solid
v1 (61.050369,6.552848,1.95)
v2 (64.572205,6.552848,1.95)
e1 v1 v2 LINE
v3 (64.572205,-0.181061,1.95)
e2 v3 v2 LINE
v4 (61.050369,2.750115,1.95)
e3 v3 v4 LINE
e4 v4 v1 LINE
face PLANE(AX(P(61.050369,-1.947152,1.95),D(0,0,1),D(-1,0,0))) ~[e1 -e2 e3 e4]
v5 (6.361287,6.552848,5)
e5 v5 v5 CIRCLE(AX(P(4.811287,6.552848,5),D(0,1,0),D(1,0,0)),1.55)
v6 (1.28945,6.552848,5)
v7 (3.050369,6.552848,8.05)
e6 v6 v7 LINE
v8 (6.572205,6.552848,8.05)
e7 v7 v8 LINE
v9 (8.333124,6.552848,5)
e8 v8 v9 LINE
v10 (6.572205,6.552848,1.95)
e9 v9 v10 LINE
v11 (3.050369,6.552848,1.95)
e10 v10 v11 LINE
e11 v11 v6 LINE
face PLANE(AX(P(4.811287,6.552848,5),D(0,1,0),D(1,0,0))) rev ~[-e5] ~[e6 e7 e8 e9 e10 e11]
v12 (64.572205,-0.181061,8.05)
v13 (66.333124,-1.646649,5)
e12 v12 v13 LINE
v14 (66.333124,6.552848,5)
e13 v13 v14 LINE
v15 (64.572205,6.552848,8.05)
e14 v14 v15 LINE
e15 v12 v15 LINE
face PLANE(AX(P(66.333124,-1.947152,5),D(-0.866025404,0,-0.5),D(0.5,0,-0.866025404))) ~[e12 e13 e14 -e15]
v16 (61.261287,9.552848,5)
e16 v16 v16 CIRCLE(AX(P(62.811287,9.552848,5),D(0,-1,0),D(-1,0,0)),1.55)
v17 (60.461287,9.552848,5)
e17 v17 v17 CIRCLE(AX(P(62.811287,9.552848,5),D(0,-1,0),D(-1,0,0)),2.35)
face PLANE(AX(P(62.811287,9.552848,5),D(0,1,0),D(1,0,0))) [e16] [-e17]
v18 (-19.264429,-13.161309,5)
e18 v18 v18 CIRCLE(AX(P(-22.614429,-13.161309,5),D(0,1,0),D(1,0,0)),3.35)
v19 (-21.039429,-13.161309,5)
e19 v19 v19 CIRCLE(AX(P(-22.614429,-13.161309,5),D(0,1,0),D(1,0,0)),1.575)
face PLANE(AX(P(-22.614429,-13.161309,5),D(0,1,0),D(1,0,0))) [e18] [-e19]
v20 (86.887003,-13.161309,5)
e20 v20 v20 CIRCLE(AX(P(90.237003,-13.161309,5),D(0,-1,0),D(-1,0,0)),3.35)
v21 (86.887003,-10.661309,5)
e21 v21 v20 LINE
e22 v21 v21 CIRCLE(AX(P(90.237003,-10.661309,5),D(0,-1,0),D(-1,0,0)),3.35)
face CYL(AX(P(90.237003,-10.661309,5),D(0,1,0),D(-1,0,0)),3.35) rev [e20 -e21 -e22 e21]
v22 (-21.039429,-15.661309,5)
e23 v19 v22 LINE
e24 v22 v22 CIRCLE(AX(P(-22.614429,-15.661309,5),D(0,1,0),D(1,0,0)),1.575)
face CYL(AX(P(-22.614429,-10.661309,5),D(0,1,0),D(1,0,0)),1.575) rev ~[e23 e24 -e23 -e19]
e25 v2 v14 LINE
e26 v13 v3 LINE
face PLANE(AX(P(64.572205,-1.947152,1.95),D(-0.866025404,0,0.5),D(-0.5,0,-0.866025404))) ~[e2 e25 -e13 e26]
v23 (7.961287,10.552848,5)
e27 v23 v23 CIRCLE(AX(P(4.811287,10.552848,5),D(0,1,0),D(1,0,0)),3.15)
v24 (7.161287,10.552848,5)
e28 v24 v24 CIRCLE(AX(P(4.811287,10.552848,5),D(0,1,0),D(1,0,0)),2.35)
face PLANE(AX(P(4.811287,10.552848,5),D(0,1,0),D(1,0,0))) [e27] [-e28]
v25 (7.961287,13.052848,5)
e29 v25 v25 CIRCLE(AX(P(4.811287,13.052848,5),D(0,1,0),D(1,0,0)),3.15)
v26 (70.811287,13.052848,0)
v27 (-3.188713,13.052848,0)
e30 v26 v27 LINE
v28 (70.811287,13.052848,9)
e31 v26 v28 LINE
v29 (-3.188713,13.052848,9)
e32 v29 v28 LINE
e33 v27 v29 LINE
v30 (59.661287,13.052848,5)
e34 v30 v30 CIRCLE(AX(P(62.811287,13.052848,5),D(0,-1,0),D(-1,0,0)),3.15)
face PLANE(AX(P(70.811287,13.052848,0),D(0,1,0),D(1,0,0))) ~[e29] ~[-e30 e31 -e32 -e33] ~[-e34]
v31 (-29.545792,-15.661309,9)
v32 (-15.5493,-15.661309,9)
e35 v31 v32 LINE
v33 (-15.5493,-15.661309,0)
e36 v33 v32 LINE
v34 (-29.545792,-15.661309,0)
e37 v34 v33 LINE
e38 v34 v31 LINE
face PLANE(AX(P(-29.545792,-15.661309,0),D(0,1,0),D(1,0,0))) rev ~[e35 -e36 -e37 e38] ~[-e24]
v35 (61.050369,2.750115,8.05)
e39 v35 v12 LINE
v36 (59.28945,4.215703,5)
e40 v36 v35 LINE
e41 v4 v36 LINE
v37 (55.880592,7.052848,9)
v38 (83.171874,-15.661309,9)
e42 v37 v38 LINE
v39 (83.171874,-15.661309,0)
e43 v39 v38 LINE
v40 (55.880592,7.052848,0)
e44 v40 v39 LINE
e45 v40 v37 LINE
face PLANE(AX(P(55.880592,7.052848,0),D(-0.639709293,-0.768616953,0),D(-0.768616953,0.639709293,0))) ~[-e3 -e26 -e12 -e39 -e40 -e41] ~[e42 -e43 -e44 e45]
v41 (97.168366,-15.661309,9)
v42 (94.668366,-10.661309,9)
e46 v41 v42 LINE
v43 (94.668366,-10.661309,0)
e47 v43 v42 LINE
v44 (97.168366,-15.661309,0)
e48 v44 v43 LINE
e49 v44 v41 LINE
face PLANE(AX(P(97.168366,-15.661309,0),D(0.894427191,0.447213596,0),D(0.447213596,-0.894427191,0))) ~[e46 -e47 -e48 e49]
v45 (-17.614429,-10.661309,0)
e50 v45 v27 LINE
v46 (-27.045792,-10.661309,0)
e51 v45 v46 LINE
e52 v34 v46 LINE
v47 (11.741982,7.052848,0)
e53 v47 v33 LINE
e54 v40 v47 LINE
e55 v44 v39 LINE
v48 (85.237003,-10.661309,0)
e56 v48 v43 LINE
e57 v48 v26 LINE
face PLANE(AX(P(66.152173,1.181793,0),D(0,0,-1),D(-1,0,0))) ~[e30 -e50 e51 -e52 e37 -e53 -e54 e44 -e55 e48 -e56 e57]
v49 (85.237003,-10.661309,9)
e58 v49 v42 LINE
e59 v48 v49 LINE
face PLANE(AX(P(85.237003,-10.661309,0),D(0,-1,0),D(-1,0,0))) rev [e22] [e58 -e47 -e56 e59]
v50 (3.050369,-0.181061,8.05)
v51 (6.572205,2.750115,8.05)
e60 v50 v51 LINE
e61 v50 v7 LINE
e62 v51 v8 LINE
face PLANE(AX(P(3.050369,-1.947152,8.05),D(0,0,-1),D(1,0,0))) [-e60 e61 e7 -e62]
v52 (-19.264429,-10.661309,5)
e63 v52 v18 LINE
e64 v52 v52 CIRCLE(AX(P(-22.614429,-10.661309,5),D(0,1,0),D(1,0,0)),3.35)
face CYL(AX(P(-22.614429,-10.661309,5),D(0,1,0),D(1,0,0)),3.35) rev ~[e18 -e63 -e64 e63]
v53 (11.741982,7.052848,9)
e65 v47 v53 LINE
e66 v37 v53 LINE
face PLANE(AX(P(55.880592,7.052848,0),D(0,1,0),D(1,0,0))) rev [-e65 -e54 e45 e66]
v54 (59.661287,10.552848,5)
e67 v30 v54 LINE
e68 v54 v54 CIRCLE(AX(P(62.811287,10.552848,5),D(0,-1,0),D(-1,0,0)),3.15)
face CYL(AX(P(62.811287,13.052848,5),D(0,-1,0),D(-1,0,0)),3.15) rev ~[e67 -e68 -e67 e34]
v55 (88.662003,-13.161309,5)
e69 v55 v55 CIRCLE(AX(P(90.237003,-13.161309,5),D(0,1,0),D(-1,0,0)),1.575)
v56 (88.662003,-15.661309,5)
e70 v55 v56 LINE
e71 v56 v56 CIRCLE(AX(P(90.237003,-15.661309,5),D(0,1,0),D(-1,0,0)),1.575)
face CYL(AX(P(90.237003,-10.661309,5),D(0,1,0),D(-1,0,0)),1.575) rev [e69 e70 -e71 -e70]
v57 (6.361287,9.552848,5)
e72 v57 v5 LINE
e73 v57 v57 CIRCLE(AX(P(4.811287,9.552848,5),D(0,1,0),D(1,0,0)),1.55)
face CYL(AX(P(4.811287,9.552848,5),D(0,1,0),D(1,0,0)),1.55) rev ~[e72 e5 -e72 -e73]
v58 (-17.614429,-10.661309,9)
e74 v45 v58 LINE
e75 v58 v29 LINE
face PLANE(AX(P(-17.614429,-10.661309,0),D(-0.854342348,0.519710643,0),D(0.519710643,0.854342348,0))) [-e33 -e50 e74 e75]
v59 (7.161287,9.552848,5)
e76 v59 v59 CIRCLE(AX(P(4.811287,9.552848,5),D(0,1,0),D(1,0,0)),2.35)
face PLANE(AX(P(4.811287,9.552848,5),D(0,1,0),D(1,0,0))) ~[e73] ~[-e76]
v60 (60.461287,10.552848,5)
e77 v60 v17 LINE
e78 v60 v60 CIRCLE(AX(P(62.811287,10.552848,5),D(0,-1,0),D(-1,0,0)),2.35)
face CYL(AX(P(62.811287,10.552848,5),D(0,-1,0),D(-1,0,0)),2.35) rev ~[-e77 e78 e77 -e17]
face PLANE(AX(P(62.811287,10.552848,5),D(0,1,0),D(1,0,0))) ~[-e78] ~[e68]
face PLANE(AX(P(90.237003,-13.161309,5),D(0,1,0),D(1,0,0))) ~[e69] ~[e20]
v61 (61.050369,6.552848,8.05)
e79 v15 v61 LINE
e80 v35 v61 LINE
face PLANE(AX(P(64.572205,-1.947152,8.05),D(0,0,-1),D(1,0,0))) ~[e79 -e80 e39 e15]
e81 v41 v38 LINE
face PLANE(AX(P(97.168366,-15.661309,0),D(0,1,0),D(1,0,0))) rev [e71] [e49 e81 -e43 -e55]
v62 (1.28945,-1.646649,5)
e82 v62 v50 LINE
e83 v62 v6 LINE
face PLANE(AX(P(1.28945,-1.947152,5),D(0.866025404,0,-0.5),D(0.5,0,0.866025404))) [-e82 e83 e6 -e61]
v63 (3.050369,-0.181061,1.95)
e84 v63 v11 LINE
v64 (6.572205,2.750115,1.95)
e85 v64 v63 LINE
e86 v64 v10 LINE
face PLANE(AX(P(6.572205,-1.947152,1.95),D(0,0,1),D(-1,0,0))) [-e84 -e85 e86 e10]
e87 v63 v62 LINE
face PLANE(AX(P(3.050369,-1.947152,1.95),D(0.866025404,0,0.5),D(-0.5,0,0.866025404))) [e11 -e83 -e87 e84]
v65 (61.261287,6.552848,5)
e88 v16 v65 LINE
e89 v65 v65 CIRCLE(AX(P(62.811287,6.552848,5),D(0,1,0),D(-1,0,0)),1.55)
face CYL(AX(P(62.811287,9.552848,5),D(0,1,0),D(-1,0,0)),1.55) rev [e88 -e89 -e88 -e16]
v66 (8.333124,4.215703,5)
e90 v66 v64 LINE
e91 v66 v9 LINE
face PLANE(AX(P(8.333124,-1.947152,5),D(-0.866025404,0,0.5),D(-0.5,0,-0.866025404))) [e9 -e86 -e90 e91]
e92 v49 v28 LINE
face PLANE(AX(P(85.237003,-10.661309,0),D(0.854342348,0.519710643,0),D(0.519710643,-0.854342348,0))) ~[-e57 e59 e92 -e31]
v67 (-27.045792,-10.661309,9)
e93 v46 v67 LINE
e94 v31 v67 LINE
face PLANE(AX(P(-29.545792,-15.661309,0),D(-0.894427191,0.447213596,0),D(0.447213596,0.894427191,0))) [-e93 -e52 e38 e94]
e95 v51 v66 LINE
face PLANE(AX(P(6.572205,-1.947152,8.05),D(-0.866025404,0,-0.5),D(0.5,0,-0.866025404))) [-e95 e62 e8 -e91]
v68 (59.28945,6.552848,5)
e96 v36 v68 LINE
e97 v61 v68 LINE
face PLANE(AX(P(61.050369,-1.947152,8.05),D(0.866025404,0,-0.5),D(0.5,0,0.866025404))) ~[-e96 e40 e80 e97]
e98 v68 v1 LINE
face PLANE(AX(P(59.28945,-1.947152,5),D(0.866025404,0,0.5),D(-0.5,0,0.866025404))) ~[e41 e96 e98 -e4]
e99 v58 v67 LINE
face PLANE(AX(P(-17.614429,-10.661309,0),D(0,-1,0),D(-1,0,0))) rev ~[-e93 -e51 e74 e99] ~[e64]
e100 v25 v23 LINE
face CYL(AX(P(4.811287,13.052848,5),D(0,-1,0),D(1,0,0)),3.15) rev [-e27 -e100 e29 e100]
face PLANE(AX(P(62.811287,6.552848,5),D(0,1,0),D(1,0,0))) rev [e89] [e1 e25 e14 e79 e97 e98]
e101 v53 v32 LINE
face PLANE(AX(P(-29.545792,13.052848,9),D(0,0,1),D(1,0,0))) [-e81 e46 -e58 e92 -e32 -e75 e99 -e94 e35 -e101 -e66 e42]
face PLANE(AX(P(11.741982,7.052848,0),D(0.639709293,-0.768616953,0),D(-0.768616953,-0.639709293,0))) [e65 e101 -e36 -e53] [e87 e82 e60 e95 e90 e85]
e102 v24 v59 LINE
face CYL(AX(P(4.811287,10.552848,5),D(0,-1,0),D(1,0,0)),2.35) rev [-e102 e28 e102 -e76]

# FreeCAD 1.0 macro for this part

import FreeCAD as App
import Part
import Sketcher
Q = App.Units.Quantity


def add_polygon(sketch, points):
    """Adds a closed chain of lines whose ends are joined by coincident constraints."""
    first, n = sketch.GeometryCount, len(points)
    for a, b in zip(points, points[1:] + points[:1]):
        sketch.addGeometry(Part.LineSegment(App.Vector(*a, 0), App.Vector(*b, 0)), False)
    for i in range(n):
        sketch.addConstraint(Sketcher.Constraint("Coincident", first + i, 2, first + (i + 1) % n, 1))

doc = App.newDocument("Part")
body = doc.addObject("PartDesign::Body", "Body")

# Sketch on XY plane
sketch1 = body.newObject("Sketcher::SketchObject", "Sketch")
sketch1.AttachmentSupport = (doc.getObject("XY_Plane"), [""])
sketch1.MapMode = "FlatFace"
add_polygon(sketch1, [(34, 13), (-3, 13), (-18, -11), (-27, -11), (-30, -16), (-16, -16), (12, 7), (34, 7)])  # lines 0-7
sketch1.addConstraint(Sketcher.Constraint("Horizontal", 0))
sketch1.addConstraint(Sketcher.Constraint("Horizontal", 2))
sketch1.addConstraint(Sketcher.Constraint("Horizontal", 4))
sketch1.addConstraint(Sketcher.Constraint("Horizontal", 6))
sketch1.addConstraint(Sketcher.Constraint("Vertical", 7))
sketch1.addConstraint(Sketcher.Constraint("DistanceX", 0, 2, 0, 1, Q("37 mm")))
sketch1.addConstraint(Sketcher.Constraint("DistanceY", 7, 1, 7, 2, Q("6 mm")))
sketch1.addConstraint(Sketcher.Constraint("DistanceY", 3, 2, 2, 2, Q("5 mm")))
sketch1.addConstraint(Sketcher.Constraint("DistanceX", 3, 2, 2, 2, Q("2.5 mm")))
sketch1.addConstraint(Sketcher.Constraint("Distance", 5, Q("35.506999 mm")))
sketch1.addConstraint(Sketcher.Constraint("DistanceX", 4, 1, 4, 2, Q("13.996492 mm")))
sketch1.addConstraint(Sketcher.Constraint("DistanceX", 4, 2, -1, 1, Q("15.5493 mm")))
sketch1.addConstraint(Sketcher.Constraint("DistanceX", 2, 2, 2, 1, Q("9.431363 mm")))
sketch1.addConstraint(Sketcher.Constraint("DistanceX", 6, 1, 6, 2, Q("22.069305 mm")))
sketch1.addConstraint(Sketcher.Constraint("DistanceY", -1, 1, 0, 2, Q("13.052848 mm")))
sketch1.addConstraint(Sketcher.Constraint("DistanceY", 1, 2, -1, 1, Q("10.661309 mm")))
pad1 = body.newObject("PartDesign::Pad", "Pad")
pad1.Profile = sketch1
pad1.Length = 10
doc.recompute()

datumplane = body.newObject("PartDesign::Plane", "DatumPlane")
datumplane.AttachmentSupport = (doc.getObject("YZ_Plane"), [""])
datumplane.MapMode = "FlatFace"
datumplane.AttachmentOffset = App.Placement(App.Vector(0, 0, 33.811287), App.Rotation())
mirrored = body.newObject("PartDesign::Mirrored", "Mirrored")
mirrored.Originals = [pad1]
mirrored.MirrorPlane = (datumplane, [""])
body.Tip = mirrored

# Sketch on XY plane
sketch2 = body.newObject("Sketcher::SketchObject", "Sketch001")
sketch2.AttachmentSupport = (doc.getObject("XY_Plane"), [""])
sketch2.MapMode = "FlatFace"
sketch2.AttachmentOffset = App.Placement(App.Vector(0, 0, 5), App.Rotation())
add_polygon(sketch2, [(8, 10.6), (8, 13.1), (4.8, 13.1), (4.8, 9.6), (7.2, 9.6), (7.2, 10.6)])  # lines 0-5
sketch2.addGeometry(Part.LineSegment(App.Vector(4.8, 9.6, 0), App.Vector(4.8, 13.1, 0)), True)  # axis
sketch2.addConstraint(Sketcher.Constraint("Vertical", 0))
sketch2.addConstraint(Sketcher.Constraint("Horizontal", 1))
sketch2.addConstraint(Sketcher.Constraint("Vertical", 2))
sketch2.addConstraint(Sketcher.Constraint("Horizontal", 3))
sketch2.addConstraint(Sketcher.Constraint("Vertical", 4))
sketch2.addConstraint(Sketcher.Constraint("Horizontal", 5))
sketch2.addConstraint(Sketcher.Constraint("Vertical", 6))
sketch2.addConstraint(Sketcher.Constraint("Coincident", 6, 1, 2, 2))
sketch2.addConstraint(Sketcher.Constraint("Horizontal", 0, 2, 6, 2))
sketch2.addConstraint(Sketcher.Constraint("DistanceY", 4, 1, 4, 2, Q("1 mm")))
sketch2.addConstraint(Sketcher.Constraint("DistanceX", 5, 1, 5, 2, Q("0.8 mm")))
sketch2.addConstraint(Sketcher.Constraint("DistanceY", 0, 1, 0, 2, Q("2.5 mm")))
sketch2.addConstraint(Sketcher.Constraint("DistanceX", 1, 2, 1, 1, Q("3.15 mm")))
sketch2.addConstraint(Sketcher.Constraint("DistanceY", -1, 1, 0, 2, Q("13.052848 mm")))
sketch2.addConstraint(Sketcher.Constraint("DistanceX", -1, 1, 0, 2, Q("7.961287 mm")))
groove = body.newObject("PartDesign::Groove", "Groove")
groove.Profile = sketch2
groove.ReferenceAxis = (sketch2, ["Axis0"])
groove.Angle = 360

# Sketch on XZ plane
sketch3 = body.newObject("Sketcher::SketchObject", "Sketch002")
sketch3.AttachmentSupport = (doc.getObject("XZ_Plane"), [""])
sketch3.MapMode = "FlatFace"
sketch3.AttachmentOffset = App.Placement(App.Vector(0, 0, -9.552848), App.Rotation())
sketch3.addGeometry(Part.Circle(App.Vector(4.8, 5, 0), App.Vector(0, 0, 1), 1.6), False)
sketch3.addConstraint(Sketcher.Constraint("Diameter", 0, Q("3.1 mm")))
sketch3.addConstraint(Sketcher.Constraint("DistanceY", -1, 1, 0, 3, Q("5 mm")))
sketch3.addConstraint(Sketcher.Constraint("DistanceX", -1, 1, 0, 3, Q("4.811287 mm")))
pocket1 = body.newObject("PartDesign::Pocket", "Pocket")
pocket1.Profile = sketch3
pocket1.Type = "ThroughAll"
pocket1.Reversed = True

# Sketch on XZ plane
sketch4 = body.newObject("Sketcher::SketchObject", "Sketch003")
sketch4.AttachmentSupport = (doc.getObject("XZ_Plane"), [""])
sketch4.MapMode = "FlatFace"
sketch4.AttachmentOffset = App.Placement(App.Vector(0, 0, 1.947152), App.Rotation())
add_polygon(sketch4, [(8.3, 5), (6.6, 1.9), (3.1, 1.9), (1.3, 5), (3.1, 8.1), (6.6, 8.1)])  # lines 0-5
sketch4.addConstraint(Sketcher.Constraint("Horizontal", 1))
sketch4.addConstraint(Sketcher.Constraint("Horizontal", 4))
sketch4.addConstraint(Sketcher.Constraint("Parallel", 0, 3))
sketch4.addConstraint(Sketcher.Constraint("Parallel", 2, 5))
sketch4.addConstraint(Sketcher.Constraint("Horizontal", 2, 2, 5, 2))
sketch4.addConstraint(Sketcher.Constraint("Vertical", 1, 2, 3, 2))
sketch4.addConstraint(Sketcher.Constraint("Vertical", 0, 2, 4, 2))
sketch4.addConstraint(Sketcher.Constraint("Angle", 0, Q("-120 deg")))
sketch4.addConstraint(Sketcher.Constraint("DistanceY", -1, 1, 2, 2, Q("5 mm")))
sketch4.addConstraint(Sketcher.Constraint("DistanceY", 1, 2, 3, 2, Q("6.1 mm")))
sketch4.addConstraint(Sketcher.Constraint("DistanceX", 1, 2, 1, 1, Q("3.521837 mm")))
sketch4.addConstraint(Sketcher.Constraint("DistanceX", -1, 1, 1, 2, Q("3.050369 mm")))
pocket2 = body.newObject("PartDesign::Pocket", "Pocket001")
pocket2.Profile = sketch4
pocket2.Length = 8.5

# Sketch on XZ plane
sketch5 = body.newObject("Sketcher::SketchObject", "Sketch004")
sketch5.AttachmentSupport = (doc.getObject("XZ_Plane"), [""])
sketch5.MapMode = "FlatFace"
sketch5.AttachmentOffset = App.Placement(App.Vector(0, 0, 10.661309), App.Rotation())
sketch5.addGeometry(Part.Circle(App.Vector(-22.6, 5, 0), App.Vector(0, 0, 1), 1.6), False)
sketch5.addConstraint(Sketcher.Constraint("Diameter", 0, Q("3.15 mm")))
sketch5.addConstraint(Sketcher.Constraint("DistanceY", -1, 1, 0, 3, Q("5 mm")))
sketch5.addConstraint(Sketcher.Constraint("DistanceX", 0, 3, -1, 1, Q("22.614429 mm")))
pocket3 = body.newObject("PartDesign::Pocket", "Pocket002")
pocket3.Profile = sketch5
pocket3.Length = 12
pocket3.Reversed = True

# Sketch on XZ plane
sketch6 = body.newObject("Sketcher::SketchObject", "Sketch005")
sketch6.AttachmentSupport = (doc.getObject("XZ_Plane"), [""])
sketch6.MapMode = "FlatFace"
sketch6.AttachmentOffset = App.Placement(App.Vector(0, 0, 10.661309), App.Rotation())
sketch6.addGeometry(Part.Circle(App.Vector(-22.6, 5, 0), App.Vector(0, 0, 1), 3.4), False)
sketch6.addConstraint(Sketcher.Constraint("Diameter", 0, Q("6.7 mm")))
sketch6.addConstraint(Sketcher.Constraint("DistanceY", -1, 1, 0, 3, Q("5 mm")))
sketch6.addConstraint(Sketcher.Constraint("DistanceX", 0, 3, -1, 1, Q("22.614429 mm")))
pocket4 = body.newObject("PartDesign::Pocket", "Pocket003")
pocket4.Profile = sketch6
pocket4.Length = 2.5
pocket4.Reversed = True
doc.recompute()

datumplane2 = body.newObject("PartDesign::Plane", "DatumPlane001")
datumplane2.AttachmentSupport = (doc.getObject("YZ_Plane"), [""])
datumplane2.MapMode = "FlatFace"
datumplane2.AttachmentOffset = App.Placement(App.Vector(0, 0, 33.811287), App.Rotation())
mirrored2 = body.newObject("PartDesign::Mirrored", "Mirrored001")
mirrored2.Originals = [groove, pocket1, pocket2, pocket3, pocket4]
mirrored2.MirrorPlane = (datumplane2, [""])
body.Tip = mirrored2

# Sketch on XZ plane
sketch7 = body.newObject("Sketcher::SketchObject", "Sketch006")
sketch7.AttachmentSupport = (doc.getObject("XZ_Plane"), [""])
sketch7.MapMode = "FlatFace"
sketch7.AttachmentOffset = App.Placement(App.Vector(0, 0, -13.052848), App.Rotation())
add_polygon(sketch7, [(-29.5, 9), (-29.5, 10), (97.2, 10), (97.2, 9)])  # lines 0-3
sketch7.addConstraint(Sketcher.Constraint("Vertical", 0))
sketch7.addConstraint(Sketcher.Constraint("Horizontal", 1))
sketch7.addConstraint(Sketcher.Constraint("Vertical", 2))
sketch7.addConstraint(Sketcher.Constraint("Horizontal", 3))
sketch7.addConstraint(Sketcher.Constraint("DistanceY", 0, 1, 0, 2, Q("1 mm")))
sketch7.addConstraint(Sketcher.Constraint("DistanceY", -1, 1, 0, 2, Q("10 mm")))
sketch7.addConstraint(Sketcher.Constraint("DistanceX", 1, 1, 1, 2, Q("126.714157 mm")))
sketch7.addConstraint(Sketcher.Constraint("DistanceX", 0, 2, -1, 1, Q("29.545792 mm")))
pocket5 = body.newObject("PartDesign::Pocket", "Pocket004")
pocket5.Profile = sketch7
pocket5.Type = "ThroughAll"
pocket5.Reversed = True

doc.recompute()
